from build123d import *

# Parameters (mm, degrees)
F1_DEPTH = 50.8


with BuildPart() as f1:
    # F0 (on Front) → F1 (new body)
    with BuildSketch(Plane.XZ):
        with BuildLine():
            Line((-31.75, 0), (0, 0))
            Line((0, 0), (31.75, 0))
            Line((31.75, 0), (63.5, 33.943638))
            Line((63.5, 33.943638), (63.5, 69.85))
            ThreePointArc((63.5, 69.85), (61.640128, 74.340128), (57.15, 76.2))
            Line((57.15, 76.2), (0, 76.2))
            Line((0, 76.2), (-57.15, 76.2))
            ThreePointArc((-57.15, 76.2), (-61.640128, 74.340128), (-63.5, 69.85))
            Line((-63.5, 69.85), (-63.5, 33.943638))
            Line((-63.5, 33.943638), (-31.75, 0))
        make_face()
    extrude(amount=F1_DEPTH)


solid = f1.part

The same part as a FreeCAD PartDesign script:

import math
import FreeCAD as App
import Part
import Sketcher
Q = App.Units.Quantity

doc = App.newDocument("Part")
body = doc.addObject("PartDesign::Body", "Body")

sketch1 = body.newObject("Sketcher::SketchObject", "Sketch")
sketch1.AttachmentSupport = (doc.getObject("XZ_Plane"), [""])
sketch1.MapMode = "FlatFace"
sketch1.addGeometry([
    Part.LineSegment(App.Vector(-32, 0, 0), App.Vector(32, 0, 0)),
    Part.LineSegment(App.Vector(32, 0, 0), App.Vector(64, 34, 0)),
    Part.LineSegment(App.Vector(64, 34, 0), App.Vector(64, 70, 0)),
    Part.ArcOfCircle(Part.Circle(App.Vector(57, 70, 0), App.Vector(0, 0, 1), 6), math.radians(0), math.radians(90)),
    Part.LineSegment(App.Vector(57, 76, 0), App.Vector(-57, 76, 0)),
    Part.ArcOfCircle(Part.Circle(App.Vector(-57, 70, 0), App.Vector(0, 0, 1), 6), math.radians(90), math.radians(180)),
    Part.LineSegment(App.Vector(-64, 70, 0), App.Vector(-64, 34, 0)),
    Part.LineSegment(App.Vector(-64, 34, 0), App.Vector(-32, 0, 0)),
], False)
sketch1.addConstraint([
    Sketcher.Constraint("Coincident", 0, 2, 1, 1),
    Sketcher.Constraint("Coincident", 1, 2, 2, 1),
    Sketcher.Constraint("Tangent", 2, 2, 3, 1),
    Sketcher.Constraint("Tangent", 3, 2, 4, 1),
    Sketcher.Constraint("Tangent", 4, 2, 5, 1),
    Sketcher.Constraint("Tangent", 5, 2, 6, 1),
    Sketcher.Constraint("Coincident", 6, 2, 7, 1),
    Sketcher.Constraint("Coincident", 7, 2, 0, 1),
    Sketcher.Constraint("Horizontal", 0),
    Sketcher.Constraint("Vertical", 2),
    Sketcher.Constraint("Horizontal", 4),
    Sketcher.Constraint("Vertical", 6),
    Sketcher.Constraint("Equal", 3, 5),
    Sketcher.Constraint("Symmetric", 0, 2, 7, 2, -1, 1),
    Sketcher.Constraint("Symmetric", 1, 2, 6, 2, -2),
    Sketcher.Constraint("Radius", 3, Q("0.25 in")),
    Sketcher.Constraint("DistanceX", 0, 1, 0, 2, Q("2.5 in")),
    Sketcher.Constraint("DistanceX", 4, 2, 4, 1, Q("4.5 in")),
    Sketcher.Constraint("DistanceY", -1, 1, 3, 2, Q("3 in")),
    Sketcher.Constraint("DistanceY", 2, 1, 2, 2, Q("35.906362 mm")),
])
pad1 = body.newObject("PartDesign::Pad", "Pad")
pad1.Profile = sketch1
pad1.Length = Q("2 in")

doc.recompute()
